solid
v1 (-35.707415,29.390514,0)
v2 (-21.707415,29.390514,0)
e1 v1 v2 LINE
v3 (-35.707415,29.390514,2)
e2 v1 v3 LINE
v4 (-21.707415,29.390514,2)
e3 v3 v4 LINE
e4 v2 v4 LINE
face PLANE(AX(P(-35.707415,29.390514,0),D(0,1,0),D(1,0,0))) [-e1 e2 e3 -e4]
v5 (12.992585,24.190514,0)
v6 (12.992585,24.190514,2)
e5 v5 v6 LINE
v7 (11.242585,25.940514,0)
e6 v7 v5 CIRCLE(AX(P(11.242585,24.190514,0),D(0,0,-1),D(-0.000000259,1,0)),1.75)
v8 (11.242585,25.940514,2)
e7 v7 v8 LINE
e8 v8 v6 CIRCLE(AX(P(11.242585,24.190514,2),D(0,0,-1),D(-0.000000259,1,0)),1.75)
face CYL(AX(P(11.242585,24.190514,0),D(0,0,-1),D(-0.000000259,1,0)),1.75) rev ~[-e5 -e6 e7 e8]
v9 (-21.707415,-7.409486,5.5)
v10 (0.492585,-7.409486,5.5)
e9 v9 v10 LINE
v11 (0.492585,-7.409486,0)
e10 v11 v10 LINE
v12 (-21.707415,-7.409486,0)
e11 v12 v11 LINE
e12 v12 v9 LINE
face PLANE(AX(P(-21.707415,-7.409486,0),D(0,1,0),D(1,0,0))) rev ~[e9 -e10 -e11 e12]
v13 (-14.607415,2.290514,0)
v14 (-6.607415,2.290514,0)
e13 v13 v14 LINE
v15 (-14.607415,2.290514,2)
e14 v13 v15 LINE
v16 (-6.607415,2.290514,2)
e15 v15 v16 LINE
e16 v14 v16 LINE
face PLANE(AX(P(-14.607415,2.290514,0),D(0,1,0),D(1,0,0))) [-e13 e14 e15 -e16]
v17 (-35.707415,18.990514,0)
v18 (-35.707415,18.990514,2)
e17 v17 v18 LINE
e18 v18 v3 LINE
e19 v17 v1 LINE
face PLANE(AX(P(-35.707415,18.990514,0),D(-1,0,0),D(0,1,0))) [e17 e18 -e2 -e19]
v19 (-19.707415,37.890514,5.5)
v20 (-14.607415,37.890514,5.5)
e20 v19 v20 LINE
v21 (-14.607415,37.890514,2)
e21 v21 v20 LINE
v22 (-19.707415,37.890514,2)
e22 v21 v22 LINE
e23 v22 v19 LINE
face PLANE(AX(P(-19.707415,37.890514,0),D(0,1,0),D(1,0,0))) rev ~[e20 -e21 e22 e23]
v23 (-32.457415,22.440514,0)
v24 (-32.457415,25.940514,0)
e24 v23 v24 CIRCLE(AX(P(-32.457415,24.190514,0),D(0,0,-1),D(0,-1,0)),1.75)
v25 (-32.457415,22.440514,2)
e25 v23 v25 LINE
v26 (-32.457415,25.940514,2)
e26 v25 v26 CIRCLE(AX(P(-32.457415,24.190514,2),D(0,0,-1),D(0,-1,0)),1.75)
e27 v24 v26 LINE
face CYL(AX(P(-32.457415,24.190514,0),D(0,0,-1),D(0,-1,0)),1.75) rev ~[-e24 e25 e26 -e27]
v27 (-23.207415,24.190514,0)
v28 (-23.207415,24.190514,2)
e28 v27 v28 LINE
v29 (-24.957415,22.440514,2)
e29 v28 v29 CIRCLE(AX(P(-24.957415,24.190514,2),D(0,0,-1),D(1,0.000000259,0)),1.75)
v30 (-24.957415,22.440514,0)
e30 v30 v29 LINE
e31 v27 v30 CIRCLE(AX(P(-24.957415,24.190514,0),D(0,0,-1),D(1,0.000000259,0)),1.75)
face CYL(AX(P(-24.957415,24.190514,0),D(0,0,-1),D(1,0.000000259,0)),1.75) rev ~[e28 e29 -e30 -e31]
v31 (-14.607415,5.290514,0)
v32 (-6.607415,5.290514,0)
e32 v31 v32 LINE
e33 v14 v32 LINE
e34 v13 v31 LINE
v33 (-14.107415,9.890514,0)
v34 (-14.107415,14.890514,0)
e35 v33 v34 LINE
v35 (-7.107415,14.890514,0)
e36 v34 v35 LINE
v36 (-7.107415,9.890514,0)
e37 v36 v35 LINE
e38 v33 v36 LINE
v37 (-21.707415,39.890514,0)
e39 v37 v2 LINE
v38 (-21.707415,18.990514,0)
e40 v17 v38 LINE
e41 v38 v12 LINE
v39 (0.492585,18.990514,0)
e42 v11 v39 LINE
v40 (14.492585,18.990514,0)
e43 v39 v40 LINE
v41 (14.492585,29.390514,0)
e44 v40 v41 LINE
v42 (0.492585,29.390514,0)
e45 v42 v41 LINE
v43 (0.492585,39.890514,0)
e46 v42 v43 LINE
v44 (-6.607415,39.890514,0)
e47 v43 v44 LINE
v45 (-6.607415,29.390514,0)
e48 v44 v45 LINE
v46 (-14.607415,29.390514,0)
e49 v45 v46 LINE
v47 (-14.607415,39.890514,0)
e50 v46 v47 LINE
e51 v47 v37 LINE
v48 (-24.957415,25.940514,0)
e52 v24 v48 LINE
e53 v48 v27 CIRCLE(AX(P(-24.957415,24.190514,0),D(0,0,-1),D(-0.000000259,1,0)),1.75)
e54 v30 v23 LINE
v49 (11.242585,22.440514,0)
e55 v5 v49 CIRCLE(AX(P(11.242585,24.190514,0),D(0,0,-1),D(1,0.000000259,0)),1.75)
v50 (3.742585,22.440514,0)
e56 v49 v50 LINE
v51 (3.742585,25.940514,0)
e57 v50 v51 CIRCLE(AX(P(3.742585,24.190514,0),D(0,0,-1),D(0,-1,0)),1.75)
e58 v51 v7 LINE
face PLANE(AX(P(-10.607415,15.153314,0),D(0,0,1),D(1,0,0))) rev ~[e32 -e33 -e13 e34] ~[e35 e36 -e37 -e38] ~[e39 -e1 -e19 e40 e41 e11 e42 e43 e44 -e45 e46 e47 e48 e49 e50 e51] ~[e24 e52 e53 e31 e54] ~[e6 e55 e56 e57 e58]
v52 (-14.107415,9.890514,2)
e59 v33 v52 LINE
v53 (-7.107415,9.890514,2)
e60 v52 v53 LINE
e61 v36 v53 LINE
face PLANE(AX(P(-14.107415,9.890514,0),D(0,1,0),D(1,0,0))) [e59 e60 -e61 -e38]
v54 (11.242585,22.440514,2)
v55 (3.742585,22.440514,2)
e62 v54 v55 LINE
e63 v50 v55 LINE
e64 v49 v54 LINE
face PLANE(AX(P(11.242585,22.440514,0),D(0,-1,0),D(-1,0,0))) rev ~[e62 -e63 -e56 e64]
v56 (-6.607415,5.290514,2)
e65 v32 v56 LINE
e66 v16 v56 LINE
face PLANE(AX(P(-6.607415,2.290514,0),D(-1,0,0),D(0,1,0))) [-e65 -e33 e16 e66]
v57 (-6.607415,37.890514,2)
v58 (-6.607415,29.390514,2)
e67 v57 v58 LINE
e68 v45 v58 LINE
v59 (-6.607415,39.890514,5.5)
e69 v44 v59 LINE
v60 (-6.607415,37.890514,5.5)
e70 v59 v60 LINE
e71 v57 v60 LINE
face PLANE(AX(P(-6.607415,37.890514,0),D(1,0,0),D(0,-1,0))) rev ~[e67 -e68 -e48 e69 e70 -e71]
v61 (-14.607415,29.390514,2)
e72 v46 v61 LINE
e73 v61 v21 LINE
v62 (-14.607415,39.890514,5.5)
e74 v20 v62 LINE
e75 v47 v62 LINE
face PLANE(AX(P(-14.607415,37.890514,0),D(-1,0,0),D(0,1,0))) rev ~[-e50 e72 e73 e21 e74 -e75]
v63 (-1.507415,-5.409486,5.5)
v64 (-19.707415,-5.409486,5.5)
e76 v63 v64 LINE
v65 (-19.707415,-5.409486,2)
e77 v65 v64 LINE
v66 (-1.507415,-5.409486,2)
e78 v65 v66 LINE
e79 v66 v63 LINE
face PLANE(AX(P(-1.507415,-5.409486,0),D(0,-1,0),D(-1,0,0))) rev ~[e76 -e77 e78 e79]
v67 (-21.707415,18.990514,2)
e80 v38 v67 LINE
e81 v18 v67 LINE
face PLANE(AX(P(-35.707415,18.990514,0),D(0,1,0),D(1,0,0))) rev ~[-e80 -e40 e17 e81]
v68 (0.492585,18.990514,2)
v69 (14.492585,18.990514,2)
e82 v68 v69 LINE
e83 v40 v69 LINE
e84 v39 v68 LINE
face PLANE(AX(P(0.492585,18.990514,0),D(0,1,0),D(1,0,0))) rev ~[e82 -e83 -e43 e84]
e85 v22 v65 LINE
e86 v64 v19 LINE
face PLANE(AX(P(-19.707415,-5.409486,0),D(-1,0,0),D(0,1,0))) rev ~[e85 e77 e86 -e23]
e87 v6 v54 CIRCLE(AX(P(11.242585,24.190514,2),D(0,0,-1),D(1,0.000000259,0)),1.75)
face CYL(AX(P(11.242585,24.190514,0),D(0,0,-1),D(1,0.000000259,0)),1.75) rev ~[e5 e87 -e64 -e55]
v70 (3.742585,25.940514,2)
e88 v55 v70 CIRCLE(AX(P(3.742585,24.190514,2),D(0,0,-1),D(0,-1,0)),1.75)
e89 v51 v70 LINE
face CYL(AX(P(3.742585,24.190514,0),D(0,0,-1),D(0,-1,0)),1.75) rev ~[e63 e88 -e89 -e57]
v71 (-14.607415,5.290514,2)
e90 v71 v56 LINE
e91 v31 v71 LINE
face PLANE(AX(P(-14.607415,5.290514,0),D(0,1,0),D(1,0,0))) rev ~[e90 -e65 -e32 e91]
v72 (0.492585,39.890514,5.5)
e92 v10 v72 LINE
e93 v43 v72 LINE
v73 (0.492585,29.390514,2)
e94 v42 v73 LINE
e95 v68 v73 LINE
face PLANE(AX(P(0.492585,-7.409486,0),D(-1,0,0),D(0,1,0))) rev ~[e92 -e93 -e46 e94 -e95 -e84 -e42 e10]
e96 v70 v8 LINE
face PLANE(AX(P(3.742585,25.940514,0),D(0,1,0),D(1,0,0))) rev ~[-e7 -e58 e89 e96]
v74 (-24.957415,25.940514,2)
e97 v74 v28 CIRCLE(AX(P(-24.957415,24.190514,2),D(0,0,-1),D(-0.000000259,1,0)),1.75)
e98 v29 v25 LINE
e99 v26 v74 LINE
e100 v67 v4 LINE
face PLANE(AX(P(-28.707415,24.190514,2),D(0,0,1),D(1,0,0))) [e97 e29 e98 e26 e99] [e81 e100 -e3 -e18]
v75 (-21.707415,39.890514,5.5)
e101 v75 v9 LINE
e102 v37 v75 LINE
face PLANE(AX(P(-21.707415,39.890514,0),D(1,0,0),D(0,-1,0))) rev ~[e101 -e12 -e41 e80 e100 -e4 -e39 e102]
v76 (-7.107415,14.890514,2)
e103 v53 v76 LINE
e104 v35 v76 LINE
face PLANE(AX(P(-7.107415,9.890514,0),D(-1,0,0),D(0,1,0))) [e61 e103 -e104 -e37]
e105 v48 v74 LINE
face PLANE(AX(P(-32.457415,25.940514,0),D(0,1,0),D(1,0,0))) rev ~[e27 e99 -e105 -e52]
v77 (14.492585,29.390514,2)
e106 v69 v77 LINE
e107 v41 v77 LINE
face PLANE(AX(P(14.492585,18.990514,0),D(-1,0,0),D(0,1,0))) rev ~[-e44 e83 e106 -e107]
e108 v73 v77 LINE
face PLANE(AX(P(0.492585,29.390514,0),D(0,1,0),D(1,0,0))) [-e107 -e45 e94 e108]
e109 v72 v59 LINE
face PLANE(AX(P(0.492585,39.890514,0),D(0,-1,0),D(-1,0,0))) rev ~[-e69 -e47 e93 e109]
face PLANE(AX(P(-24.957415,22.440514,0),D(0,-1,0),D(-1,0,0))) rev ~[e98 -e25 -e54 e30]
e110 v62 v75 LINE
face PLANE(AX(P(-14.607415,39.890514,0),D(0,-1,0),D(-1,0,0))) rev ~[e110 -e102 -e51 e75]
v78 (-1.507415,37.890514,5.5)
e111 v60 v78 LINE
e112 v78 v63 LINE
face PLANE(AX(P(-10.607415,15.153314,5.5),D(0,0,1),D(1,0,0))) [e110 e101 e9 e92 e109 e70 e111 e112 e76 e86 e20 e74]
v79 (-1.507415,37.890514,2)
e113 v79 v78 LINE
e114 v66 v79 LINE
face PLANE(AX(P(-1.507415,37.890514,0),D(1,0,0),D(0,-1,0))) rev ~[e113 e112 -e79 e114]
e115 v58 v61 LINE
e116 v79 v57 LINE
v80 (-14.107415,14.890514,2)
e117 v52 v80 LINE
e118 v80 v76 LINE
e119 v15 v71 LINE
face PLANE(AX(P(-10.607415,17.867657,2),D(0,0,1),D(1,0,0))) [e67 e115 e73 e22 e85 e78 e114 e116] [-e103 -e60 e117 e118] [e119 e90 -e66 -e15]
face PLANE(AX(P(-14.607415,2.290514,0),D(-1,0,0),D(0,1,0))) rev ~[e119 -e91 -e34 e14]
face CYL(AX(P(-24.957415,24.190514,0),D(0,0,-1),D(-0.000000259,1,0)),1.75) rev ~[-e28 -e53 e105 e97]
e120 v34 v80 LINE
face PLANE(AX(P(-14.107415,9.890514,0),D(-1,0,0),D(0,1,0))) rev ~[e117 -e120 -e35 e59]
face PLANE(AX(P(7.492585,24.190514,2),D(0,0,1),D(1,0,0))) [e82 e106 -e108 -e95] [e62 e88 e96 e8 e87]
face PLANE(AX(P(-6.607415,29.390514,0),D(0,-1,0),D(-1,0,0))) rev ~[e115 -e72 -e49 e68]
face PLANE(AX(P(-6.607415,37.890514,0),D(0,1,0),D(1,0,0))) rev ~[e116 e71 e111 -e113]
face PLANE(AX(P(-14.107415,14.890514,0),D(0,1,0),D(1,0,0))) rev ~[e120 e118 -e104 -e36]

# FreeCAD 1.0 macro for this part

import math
import FreeCAD as App
import Part
import Sketcher
Q = App.Units.Quantity


def add_polygon(sketch, points):
    """Adds a closed chain of lines whose ends are joined by coincident constraints."""
    first, n = sketch.GeometryCount, len(points)
    for a, b in zip(points, points[1:] + points[:1]):
        sketch.addGeometry(Part.LineSegment(App.Vector(*a, 0), App.Vector(*b, 0)), False)
    for i in range(n):
        sketch.addConstraint(Sketcher.Constraint("Coincident", first + i, 2, first + (i + 1) % n, 1))

doc = App.newDocument("Part")
body = doc.addObject("PartDesign::Body", "Body")
body.AllowCompound = True

# Sketch on XY plane
sketch1 = body.newObject("Sketcher::SketchObject", "Sketch")
sketch1.AttachmentSupport = (doc.getObject("XY_Plane"), [""])
sketch1.MapMode = "FlatFace"
add_polygon(sketch1, [(-14.6, 29.4), (-14.6, 37.9), (-19.7, 37.9), (-19.7, -5.4), (-1.5, -5.4), (-1.5, 37.9), (-6.6, 37.9), (-6.6, 29.4)])  # lines 0-7
add_polygon(sketch1, [(-6.6, 2.3), (-14.6, 2.3), (-14.6, 5.3), (-6.6, 5.3)])  # lines 8-11
add_polygon(sketch1, [(-7.1, 9.9), (-14.1, 9.9), (-14.1, 14.9), (-7.1, 14.9)])  # lines 12-15
add_polygon(sketch1, [(0.5, 29.4), (0.5, 19), (14.5, 19), (14.5, 29.4)])  # lines 16-19
sketch1.addGeometry(Part.LineSegment(App.Vector(3.7, 25.9, 0), App.Vector(11.2, 25.9, 0)), False)  # 20
sketch1.addGeometry(Part.ArcOfCircle(Part.Circle(App.Vector(11.2, 24.2, 0), App.Vector(0, 0, 1), 1.7), math.radians(0), math.radians(90)), False)  # 21
sketch1.addGeometry(Part.ArcOfCircle(Part.Circle(App.Vector(11.2, 24.2, 0), App.Vector(0, 0, 1), 1.7), math.radians(-90), math.radians(0)), False)  # 22
sketch1.addGeometry(Part.LineSegment(App.Vector(11.2, 22.4, 0), App.Vector(3.7, 22.4, 0)), False)  # 23
sketch1.addGeometry(Part.ArcOfCircle(Part.Circle(App.Vector(3.7, 24.2, 0), App.Vector(0, 0, 1), 1.8), math.radians(90), math.radians(270)), False)  # 24
add_polygon(sketch1, [(-35.7, 29.4), (-35.7, 19), (-21.7, 19), (-21.7, 29.4)])  # lines 25-28
sketch1.addGeometry(Part.LineSegment(App.Vector(-25, 22.4, 0), App.Vector(-32.5, 22.4, 0)), False)  # 29
sketch1.addGeometry(Part.ArcOfCircle(Part.Circle(App.Vector(-32.5, 24.2, 0), App.Vector(0, 0, 1), 1.8), math.radians(90), math.radians(270)), False)  # 30
sketch1.addGeometry(Part.LineSegment(App.Vector(-32.5, 25.9, 0), App.Vector(-25, 25.9, 0)), False)  # 31
sketch1.addGeometry(Part.ArcOfCircle(Part.Circle(App.Vector(-25, 24.2, 0), App.Vector(0, 0, 1), 1.7), math.radians(0), math.radians(90)), False)  # 32
sketch1.addGeometry(Part.ArcOfCircle(Part.Circle(App.Vector(-25, 24.2, 0), App.Vector(0, 0, 1), 1.7), math.radians(-90), math.radians(0)), False)  # 33
sketch1.addConstraint(Sketcher.Constraint("Tangent", 20, 2, 21, 2))
sketch1.addConstraint(Sketcher.Constraint("Tangent", 21, 1, 22, 2))
sketch1.addConstraint(Sketcher.Constraint("Tangent", 22, 1, 23, 1))
sketch1.addConstraint(Sketcher.Constraint("Tangent", 23, 2, 24, 2))
sketch1.addConstraint(Sketcher.Constraint("Tangent", 24, 1, 20, 1))
sketch1.addConstraint(Sketcher.Constraint("Tangent", 29, 2, 30, 2))
sketch1.addConstraint(Sketcher.Constraint("Tangent", 30, 1, 31, 1))
sketch1.addConstraint(Sketcher.Constraint("Tangent", 31, 2, 32, 2))
sketch1.addConstraint(Sketcher.Constraint("Tangent", 32, 1, 33, 2))
sketch1.addConstraint(Sketcher.Constraint("Tangent", 33, 1, 29, 1))
sketch1.addConstraint(Sketcher.Constraint("Vertical", 0))
sketch1.addConstraint(Sketcher.Constraint("Horizontal", 1))
sketch1.addConstraint(Sketcher.Constraint("Vertical", 2))
sketch1.addConstraint(Sketcher.Constraint("Horizontal", 3))
sketch1.addConstraint(Sketcher.Constraint("Vertical", 4))
sketch1.addConstraint(Sketcher.Constraint("Horizontal", 5))
sketch1.addConstraint(Sketcher.Constraint("Vertical", 6))
sketch1.addConstraint(Sketcher.Constraint("Horizontal", 7))
sketch1.addConstraint(Sketcher.Constraint("Horizontal", 8))
sketch1.addConstraint(Sketcher.Constraint("Vertical", 9))
sketch1.addConstraint(Sketcher.Constraint("Horizontal", 10))
sketch1.addConstraint(Sketcher.Constraint("Vertical", 11))
sketch1.addConstraint(Sketcher.Constraint("Horizontal", 12))
sketch1.addConstraint(Sketcher.Constraint("Vertical", 13))
sketch1.addConstraint(Sketcher.Constraint("Horizontal", 14))
sketch1.addConstraint(Sketcher.Constraint("Vertical", 15))
sketch1.addConstraint(Sketcher.Constraint("Vertical", 16))
sketch1.addConstraint(Sketcher.Constraint("Horizontal", 17))
sketch1.addConstraint(Sketcher.Constraint("Vertical", 18))
sketch1.addConstraint(Sketcher.Constraint("Horizontal", 19))
sketch1.addConstraint(Sketcher.Constraint("Horizontal", 20))
sketch1.addConstraint(Sketcher.Constraint("Horizontal", 23))
sketch1.addConstraint(Sketcher.Constraint("Vertical", 25))
sketch1.addConstraint(Sketcher.Constraint("Horizontal", 26))
sketch1.addConstraint(Sketcher.Constraint("Vertical", 27))
sketch1.addConstraint(Sketcher.Constraint("Horizontal", 28))
sketch1.addConstraint(Sketcher.Constraint("Horizontal", 29))
sketch1.addConstraint(Sketcher.Constraint("Horizontal", 31))
sketch1.addConstraint(Sketcher.Constraint("Equal", 21, 22))
sketch1.addConstraint(Sketcher.Constraint("Equal", 24, 30))
sketch1.addConstraint(Sketcher.Constraint("Equal", 30, 32))
sketch1.addConstraint(Sketcher.Constraint("Horizontal", 24, 3, 30, 3))
sketch1.addConstraint(Sketcher.Constraint("Horizontal", 1, 2, 4, 2))
sketch1.addConstraint(Sketcher.Constraint("Horizontal", 7, 2, 18, 2))
sketch1.addConstraint(Sketcher.Constraint("Horizontal", 33, 3, 21, 1))
sketch1.addConstraint(Sketcher.Constraint("Horizontal", 17, 2, 25, 2))
sketch1.addConstraint(Sketcher.Constraint("Horizontal", 19, 2, 27, 2))
sketch1.addConstraint(Sketcher.Constraint("Horizontal", 21, 1, 32, 1))
sketch1.addConstraint(Sketcher.Constraint("Vertical", 7, 2, 8, 2))
sketch1.addConstraint(Sketcher.Constraint("Vertical", 6, 2, 10, 2))
sketch1.addConstraint(Sketcher.Constraint("Equal", 1, 5))
sketch1.addConstraint(Sketcher.Constraint("Equal", 19, 26))
sketch1.addConstraint(Sketcher.Constraint("Equal", 23, 29))
sketch1.addConstraint(Sketcher.Constraint("DistanceX", 7, 2, 7, 1, Q("8 mm")))
sketch1.addConstraint(Sketcher.Constraint("DistanceX", 12, 2, 12, 1, Q("7 mm")))
sketch1.addConstraint(Sketcher.Constraint("DistanceX", 17, 1, 17, 2, Q("14 mm")))
sketch1.addConstraint(Sketcher.Constraint("DistanceY", 9, 1, 9, 2, Q("3 mm")))
sketch1.addConstraint(Sketcher.Constraint("DistanceY", 13, 1, 13, 2, Q("5 mm")))
sketch1.addConstraint(Sketcher.Constraint("Radius", 21, Q("1.75 mm")))
sketch1.addConstraint(Sketcher.Constraint("DistanceX", 1, 2, 1, 1, Q("5.1 mm")))
sketch1.addConstraint(Sketcher.Constraint("DistanceX", 20, 1, 20, 2, Q("7.5 mm")))
sketch1.addConstraint(Sketcher.Constraint("DistanceY", 0, 1, 0, 2, Q("8.5 mm")))
sketch1.addConstraint(Sketcher.Constraint("DistanceY", 2, 2, 2, 1, Q("43.3 mm")))
sketch1.addConstraint(Sketcher.Constraint("DistanceY", 16, 2, 16, 1, Q("10.4 mm")))
sketch1.addConstraint(Sketcher.Constraint("DistanceX", 4, 2, 19, 2, Q("2 mm")))
sketch1.addConstraint(Sketcher.Constraint("DistanceX", 27, 2, 1, 2, Q("2 mm")))
sketch1.addConstraint(Sketcher.Constraint("DistanceX", 30, 3, 24, 3, Q("36.2 mm")))
sketch1.addConstraint(Sketcher.Constraint("DistanceY", 32, 3, 0, 2, Q("13.7 mm")))
sketch1.addConstraint(Sketcher.Constraint("DistanceY", 2, 2, 8, 2, Q("7.7 mm")))
sketch1.addConstraint(Sketcher.Constraint("DistanceX", 9, 2, 12, 2, Q("0.5 mm")))
sketch1.addConstraint(Sketcher.Constraint("DistanceY", 9, 2, 12, 2, Q("4.6 mm")))
sketch1.addConstraint(Sketcher.Constraint("DistanceX", 21, 1, 17, 2, Q("1.5 mm")))
sketch1.addConstraint(Sketcher.Constraint("DistanceX", -1, 1, 21, 3, Q("11.242585 mm")))
sketch1.addConstraint(Sketcher.Constraint("DistanceY", -1, 1, 21, 3, Q("24.190514 mm")))
pad1 = body.newObject("PartDesign::Pad", "Pad")
pad1.Profile = sketch1
pad1.Length = 2

# Sketch on XY plane
sketch2 = body.newObject("Sketcher::SketchObject", "Sketch001")
sketch2.AttachmentSupport = (doc.getObject("XY_Plane"), [""])
sketch2.MapMode = "FlatFace"
add_polygon(sketch2, [(-19.7, 37.9), (-14.6, 37.9), (-14.6, 39.9), (-21.7, 39.9), (-21.7, -7.4), (0.5, -7.4), (0.5, 39.9), (-6.6, 39.9), (-6.6, 37.9), (-1.5, 37.9), (-1.5, -5.4), (-19.7, -5.4)])  # lines 0-11
sketch2.addConstraint(Sketcher.Constraint("Horizontal", 0))
sketch2.addConstraint(Sketcher.Constraint("Vertical", 1))
sketch2.addConstraint(Sketcher.Constraint("Horizontal", 2))
sketch2.addConstraint(Sketcher.Constraint("Vertical", 3))
sketch2.addConstraint(Sketcher.Constraint("Horizontal", 4))
sketch2.addConstraint(Sketcher.Constraint("Vertical", 5))
sketch2.addConstraint(Sketcher.Constraint("Horizontal", 6))
sketch2.addConstraint(Sketcher.Constraint("Vertical", 7))
sketch2.addConstraint(Sketcher.Constraint("Horizontal", 8))
sketch2.addConstraint(Sketcher.Constraint("Vertical", 9))
sketch2.addConstraint(Sketcher.Constraint("Horizontal", 10))
sketch2.addConstraint(Sketcher.Constraint("Vertical", 11))
sketch2.addConstraint(Sketcher.Constraint("Horizontal", 2, 2, 5, 2))
sketch2.addConstraint(Sketcher.Constraint("Horizontal", 0, 2, 7, 2))
sketch2.addConstraint(Sketcher.Constraint("Equal", 2, 6))
sketch2.addConstraint(Sketcher.Constraint("Equal", 0, 8))
sketch2.addConstraint(Sketcher.Constraint("DistanceY", 1, 1, 1, 2, Q("2 mm")))
sketch2.addConstraint(Sketcher.Constraint("DistanceX", 0, 1, 0, 2, Q("5.1 mm")))
sketch2.addConstraint(Sketcher.Constraint("DistanceX", 2, 2, 2, 1, Q("7.1 mm")))
sketch2.addConstraint(Sketcher.Constraint("DistanceX", 4, 1, 4, 2, Q("22.2 mm")))
sketch2.addConstraint(Sketcher.Constraint("DistanceY", 3, 2, 3, 1, Q("47.3 mm")))
sketch2.addConstraint(Sketcher.Constraint("DistanceY", 9, 2, 9, 1, Q("43.3 mm")))
sketch2.addConstraint(Sketcher.Constraint("DistanceX", 0, 2, -1, 1, Q("14.607415 mm")))
sketch2.addConstraint(Sketcher.Constraint("DistanceY", -1, 1, 0, 2, Q("37.890514 mm")))
pad2 = body.newObject("PartDesign::Pad", "Pad001")
pad2.Profile = sketch2
pad2.Length = 5.5

doc.recompute()
